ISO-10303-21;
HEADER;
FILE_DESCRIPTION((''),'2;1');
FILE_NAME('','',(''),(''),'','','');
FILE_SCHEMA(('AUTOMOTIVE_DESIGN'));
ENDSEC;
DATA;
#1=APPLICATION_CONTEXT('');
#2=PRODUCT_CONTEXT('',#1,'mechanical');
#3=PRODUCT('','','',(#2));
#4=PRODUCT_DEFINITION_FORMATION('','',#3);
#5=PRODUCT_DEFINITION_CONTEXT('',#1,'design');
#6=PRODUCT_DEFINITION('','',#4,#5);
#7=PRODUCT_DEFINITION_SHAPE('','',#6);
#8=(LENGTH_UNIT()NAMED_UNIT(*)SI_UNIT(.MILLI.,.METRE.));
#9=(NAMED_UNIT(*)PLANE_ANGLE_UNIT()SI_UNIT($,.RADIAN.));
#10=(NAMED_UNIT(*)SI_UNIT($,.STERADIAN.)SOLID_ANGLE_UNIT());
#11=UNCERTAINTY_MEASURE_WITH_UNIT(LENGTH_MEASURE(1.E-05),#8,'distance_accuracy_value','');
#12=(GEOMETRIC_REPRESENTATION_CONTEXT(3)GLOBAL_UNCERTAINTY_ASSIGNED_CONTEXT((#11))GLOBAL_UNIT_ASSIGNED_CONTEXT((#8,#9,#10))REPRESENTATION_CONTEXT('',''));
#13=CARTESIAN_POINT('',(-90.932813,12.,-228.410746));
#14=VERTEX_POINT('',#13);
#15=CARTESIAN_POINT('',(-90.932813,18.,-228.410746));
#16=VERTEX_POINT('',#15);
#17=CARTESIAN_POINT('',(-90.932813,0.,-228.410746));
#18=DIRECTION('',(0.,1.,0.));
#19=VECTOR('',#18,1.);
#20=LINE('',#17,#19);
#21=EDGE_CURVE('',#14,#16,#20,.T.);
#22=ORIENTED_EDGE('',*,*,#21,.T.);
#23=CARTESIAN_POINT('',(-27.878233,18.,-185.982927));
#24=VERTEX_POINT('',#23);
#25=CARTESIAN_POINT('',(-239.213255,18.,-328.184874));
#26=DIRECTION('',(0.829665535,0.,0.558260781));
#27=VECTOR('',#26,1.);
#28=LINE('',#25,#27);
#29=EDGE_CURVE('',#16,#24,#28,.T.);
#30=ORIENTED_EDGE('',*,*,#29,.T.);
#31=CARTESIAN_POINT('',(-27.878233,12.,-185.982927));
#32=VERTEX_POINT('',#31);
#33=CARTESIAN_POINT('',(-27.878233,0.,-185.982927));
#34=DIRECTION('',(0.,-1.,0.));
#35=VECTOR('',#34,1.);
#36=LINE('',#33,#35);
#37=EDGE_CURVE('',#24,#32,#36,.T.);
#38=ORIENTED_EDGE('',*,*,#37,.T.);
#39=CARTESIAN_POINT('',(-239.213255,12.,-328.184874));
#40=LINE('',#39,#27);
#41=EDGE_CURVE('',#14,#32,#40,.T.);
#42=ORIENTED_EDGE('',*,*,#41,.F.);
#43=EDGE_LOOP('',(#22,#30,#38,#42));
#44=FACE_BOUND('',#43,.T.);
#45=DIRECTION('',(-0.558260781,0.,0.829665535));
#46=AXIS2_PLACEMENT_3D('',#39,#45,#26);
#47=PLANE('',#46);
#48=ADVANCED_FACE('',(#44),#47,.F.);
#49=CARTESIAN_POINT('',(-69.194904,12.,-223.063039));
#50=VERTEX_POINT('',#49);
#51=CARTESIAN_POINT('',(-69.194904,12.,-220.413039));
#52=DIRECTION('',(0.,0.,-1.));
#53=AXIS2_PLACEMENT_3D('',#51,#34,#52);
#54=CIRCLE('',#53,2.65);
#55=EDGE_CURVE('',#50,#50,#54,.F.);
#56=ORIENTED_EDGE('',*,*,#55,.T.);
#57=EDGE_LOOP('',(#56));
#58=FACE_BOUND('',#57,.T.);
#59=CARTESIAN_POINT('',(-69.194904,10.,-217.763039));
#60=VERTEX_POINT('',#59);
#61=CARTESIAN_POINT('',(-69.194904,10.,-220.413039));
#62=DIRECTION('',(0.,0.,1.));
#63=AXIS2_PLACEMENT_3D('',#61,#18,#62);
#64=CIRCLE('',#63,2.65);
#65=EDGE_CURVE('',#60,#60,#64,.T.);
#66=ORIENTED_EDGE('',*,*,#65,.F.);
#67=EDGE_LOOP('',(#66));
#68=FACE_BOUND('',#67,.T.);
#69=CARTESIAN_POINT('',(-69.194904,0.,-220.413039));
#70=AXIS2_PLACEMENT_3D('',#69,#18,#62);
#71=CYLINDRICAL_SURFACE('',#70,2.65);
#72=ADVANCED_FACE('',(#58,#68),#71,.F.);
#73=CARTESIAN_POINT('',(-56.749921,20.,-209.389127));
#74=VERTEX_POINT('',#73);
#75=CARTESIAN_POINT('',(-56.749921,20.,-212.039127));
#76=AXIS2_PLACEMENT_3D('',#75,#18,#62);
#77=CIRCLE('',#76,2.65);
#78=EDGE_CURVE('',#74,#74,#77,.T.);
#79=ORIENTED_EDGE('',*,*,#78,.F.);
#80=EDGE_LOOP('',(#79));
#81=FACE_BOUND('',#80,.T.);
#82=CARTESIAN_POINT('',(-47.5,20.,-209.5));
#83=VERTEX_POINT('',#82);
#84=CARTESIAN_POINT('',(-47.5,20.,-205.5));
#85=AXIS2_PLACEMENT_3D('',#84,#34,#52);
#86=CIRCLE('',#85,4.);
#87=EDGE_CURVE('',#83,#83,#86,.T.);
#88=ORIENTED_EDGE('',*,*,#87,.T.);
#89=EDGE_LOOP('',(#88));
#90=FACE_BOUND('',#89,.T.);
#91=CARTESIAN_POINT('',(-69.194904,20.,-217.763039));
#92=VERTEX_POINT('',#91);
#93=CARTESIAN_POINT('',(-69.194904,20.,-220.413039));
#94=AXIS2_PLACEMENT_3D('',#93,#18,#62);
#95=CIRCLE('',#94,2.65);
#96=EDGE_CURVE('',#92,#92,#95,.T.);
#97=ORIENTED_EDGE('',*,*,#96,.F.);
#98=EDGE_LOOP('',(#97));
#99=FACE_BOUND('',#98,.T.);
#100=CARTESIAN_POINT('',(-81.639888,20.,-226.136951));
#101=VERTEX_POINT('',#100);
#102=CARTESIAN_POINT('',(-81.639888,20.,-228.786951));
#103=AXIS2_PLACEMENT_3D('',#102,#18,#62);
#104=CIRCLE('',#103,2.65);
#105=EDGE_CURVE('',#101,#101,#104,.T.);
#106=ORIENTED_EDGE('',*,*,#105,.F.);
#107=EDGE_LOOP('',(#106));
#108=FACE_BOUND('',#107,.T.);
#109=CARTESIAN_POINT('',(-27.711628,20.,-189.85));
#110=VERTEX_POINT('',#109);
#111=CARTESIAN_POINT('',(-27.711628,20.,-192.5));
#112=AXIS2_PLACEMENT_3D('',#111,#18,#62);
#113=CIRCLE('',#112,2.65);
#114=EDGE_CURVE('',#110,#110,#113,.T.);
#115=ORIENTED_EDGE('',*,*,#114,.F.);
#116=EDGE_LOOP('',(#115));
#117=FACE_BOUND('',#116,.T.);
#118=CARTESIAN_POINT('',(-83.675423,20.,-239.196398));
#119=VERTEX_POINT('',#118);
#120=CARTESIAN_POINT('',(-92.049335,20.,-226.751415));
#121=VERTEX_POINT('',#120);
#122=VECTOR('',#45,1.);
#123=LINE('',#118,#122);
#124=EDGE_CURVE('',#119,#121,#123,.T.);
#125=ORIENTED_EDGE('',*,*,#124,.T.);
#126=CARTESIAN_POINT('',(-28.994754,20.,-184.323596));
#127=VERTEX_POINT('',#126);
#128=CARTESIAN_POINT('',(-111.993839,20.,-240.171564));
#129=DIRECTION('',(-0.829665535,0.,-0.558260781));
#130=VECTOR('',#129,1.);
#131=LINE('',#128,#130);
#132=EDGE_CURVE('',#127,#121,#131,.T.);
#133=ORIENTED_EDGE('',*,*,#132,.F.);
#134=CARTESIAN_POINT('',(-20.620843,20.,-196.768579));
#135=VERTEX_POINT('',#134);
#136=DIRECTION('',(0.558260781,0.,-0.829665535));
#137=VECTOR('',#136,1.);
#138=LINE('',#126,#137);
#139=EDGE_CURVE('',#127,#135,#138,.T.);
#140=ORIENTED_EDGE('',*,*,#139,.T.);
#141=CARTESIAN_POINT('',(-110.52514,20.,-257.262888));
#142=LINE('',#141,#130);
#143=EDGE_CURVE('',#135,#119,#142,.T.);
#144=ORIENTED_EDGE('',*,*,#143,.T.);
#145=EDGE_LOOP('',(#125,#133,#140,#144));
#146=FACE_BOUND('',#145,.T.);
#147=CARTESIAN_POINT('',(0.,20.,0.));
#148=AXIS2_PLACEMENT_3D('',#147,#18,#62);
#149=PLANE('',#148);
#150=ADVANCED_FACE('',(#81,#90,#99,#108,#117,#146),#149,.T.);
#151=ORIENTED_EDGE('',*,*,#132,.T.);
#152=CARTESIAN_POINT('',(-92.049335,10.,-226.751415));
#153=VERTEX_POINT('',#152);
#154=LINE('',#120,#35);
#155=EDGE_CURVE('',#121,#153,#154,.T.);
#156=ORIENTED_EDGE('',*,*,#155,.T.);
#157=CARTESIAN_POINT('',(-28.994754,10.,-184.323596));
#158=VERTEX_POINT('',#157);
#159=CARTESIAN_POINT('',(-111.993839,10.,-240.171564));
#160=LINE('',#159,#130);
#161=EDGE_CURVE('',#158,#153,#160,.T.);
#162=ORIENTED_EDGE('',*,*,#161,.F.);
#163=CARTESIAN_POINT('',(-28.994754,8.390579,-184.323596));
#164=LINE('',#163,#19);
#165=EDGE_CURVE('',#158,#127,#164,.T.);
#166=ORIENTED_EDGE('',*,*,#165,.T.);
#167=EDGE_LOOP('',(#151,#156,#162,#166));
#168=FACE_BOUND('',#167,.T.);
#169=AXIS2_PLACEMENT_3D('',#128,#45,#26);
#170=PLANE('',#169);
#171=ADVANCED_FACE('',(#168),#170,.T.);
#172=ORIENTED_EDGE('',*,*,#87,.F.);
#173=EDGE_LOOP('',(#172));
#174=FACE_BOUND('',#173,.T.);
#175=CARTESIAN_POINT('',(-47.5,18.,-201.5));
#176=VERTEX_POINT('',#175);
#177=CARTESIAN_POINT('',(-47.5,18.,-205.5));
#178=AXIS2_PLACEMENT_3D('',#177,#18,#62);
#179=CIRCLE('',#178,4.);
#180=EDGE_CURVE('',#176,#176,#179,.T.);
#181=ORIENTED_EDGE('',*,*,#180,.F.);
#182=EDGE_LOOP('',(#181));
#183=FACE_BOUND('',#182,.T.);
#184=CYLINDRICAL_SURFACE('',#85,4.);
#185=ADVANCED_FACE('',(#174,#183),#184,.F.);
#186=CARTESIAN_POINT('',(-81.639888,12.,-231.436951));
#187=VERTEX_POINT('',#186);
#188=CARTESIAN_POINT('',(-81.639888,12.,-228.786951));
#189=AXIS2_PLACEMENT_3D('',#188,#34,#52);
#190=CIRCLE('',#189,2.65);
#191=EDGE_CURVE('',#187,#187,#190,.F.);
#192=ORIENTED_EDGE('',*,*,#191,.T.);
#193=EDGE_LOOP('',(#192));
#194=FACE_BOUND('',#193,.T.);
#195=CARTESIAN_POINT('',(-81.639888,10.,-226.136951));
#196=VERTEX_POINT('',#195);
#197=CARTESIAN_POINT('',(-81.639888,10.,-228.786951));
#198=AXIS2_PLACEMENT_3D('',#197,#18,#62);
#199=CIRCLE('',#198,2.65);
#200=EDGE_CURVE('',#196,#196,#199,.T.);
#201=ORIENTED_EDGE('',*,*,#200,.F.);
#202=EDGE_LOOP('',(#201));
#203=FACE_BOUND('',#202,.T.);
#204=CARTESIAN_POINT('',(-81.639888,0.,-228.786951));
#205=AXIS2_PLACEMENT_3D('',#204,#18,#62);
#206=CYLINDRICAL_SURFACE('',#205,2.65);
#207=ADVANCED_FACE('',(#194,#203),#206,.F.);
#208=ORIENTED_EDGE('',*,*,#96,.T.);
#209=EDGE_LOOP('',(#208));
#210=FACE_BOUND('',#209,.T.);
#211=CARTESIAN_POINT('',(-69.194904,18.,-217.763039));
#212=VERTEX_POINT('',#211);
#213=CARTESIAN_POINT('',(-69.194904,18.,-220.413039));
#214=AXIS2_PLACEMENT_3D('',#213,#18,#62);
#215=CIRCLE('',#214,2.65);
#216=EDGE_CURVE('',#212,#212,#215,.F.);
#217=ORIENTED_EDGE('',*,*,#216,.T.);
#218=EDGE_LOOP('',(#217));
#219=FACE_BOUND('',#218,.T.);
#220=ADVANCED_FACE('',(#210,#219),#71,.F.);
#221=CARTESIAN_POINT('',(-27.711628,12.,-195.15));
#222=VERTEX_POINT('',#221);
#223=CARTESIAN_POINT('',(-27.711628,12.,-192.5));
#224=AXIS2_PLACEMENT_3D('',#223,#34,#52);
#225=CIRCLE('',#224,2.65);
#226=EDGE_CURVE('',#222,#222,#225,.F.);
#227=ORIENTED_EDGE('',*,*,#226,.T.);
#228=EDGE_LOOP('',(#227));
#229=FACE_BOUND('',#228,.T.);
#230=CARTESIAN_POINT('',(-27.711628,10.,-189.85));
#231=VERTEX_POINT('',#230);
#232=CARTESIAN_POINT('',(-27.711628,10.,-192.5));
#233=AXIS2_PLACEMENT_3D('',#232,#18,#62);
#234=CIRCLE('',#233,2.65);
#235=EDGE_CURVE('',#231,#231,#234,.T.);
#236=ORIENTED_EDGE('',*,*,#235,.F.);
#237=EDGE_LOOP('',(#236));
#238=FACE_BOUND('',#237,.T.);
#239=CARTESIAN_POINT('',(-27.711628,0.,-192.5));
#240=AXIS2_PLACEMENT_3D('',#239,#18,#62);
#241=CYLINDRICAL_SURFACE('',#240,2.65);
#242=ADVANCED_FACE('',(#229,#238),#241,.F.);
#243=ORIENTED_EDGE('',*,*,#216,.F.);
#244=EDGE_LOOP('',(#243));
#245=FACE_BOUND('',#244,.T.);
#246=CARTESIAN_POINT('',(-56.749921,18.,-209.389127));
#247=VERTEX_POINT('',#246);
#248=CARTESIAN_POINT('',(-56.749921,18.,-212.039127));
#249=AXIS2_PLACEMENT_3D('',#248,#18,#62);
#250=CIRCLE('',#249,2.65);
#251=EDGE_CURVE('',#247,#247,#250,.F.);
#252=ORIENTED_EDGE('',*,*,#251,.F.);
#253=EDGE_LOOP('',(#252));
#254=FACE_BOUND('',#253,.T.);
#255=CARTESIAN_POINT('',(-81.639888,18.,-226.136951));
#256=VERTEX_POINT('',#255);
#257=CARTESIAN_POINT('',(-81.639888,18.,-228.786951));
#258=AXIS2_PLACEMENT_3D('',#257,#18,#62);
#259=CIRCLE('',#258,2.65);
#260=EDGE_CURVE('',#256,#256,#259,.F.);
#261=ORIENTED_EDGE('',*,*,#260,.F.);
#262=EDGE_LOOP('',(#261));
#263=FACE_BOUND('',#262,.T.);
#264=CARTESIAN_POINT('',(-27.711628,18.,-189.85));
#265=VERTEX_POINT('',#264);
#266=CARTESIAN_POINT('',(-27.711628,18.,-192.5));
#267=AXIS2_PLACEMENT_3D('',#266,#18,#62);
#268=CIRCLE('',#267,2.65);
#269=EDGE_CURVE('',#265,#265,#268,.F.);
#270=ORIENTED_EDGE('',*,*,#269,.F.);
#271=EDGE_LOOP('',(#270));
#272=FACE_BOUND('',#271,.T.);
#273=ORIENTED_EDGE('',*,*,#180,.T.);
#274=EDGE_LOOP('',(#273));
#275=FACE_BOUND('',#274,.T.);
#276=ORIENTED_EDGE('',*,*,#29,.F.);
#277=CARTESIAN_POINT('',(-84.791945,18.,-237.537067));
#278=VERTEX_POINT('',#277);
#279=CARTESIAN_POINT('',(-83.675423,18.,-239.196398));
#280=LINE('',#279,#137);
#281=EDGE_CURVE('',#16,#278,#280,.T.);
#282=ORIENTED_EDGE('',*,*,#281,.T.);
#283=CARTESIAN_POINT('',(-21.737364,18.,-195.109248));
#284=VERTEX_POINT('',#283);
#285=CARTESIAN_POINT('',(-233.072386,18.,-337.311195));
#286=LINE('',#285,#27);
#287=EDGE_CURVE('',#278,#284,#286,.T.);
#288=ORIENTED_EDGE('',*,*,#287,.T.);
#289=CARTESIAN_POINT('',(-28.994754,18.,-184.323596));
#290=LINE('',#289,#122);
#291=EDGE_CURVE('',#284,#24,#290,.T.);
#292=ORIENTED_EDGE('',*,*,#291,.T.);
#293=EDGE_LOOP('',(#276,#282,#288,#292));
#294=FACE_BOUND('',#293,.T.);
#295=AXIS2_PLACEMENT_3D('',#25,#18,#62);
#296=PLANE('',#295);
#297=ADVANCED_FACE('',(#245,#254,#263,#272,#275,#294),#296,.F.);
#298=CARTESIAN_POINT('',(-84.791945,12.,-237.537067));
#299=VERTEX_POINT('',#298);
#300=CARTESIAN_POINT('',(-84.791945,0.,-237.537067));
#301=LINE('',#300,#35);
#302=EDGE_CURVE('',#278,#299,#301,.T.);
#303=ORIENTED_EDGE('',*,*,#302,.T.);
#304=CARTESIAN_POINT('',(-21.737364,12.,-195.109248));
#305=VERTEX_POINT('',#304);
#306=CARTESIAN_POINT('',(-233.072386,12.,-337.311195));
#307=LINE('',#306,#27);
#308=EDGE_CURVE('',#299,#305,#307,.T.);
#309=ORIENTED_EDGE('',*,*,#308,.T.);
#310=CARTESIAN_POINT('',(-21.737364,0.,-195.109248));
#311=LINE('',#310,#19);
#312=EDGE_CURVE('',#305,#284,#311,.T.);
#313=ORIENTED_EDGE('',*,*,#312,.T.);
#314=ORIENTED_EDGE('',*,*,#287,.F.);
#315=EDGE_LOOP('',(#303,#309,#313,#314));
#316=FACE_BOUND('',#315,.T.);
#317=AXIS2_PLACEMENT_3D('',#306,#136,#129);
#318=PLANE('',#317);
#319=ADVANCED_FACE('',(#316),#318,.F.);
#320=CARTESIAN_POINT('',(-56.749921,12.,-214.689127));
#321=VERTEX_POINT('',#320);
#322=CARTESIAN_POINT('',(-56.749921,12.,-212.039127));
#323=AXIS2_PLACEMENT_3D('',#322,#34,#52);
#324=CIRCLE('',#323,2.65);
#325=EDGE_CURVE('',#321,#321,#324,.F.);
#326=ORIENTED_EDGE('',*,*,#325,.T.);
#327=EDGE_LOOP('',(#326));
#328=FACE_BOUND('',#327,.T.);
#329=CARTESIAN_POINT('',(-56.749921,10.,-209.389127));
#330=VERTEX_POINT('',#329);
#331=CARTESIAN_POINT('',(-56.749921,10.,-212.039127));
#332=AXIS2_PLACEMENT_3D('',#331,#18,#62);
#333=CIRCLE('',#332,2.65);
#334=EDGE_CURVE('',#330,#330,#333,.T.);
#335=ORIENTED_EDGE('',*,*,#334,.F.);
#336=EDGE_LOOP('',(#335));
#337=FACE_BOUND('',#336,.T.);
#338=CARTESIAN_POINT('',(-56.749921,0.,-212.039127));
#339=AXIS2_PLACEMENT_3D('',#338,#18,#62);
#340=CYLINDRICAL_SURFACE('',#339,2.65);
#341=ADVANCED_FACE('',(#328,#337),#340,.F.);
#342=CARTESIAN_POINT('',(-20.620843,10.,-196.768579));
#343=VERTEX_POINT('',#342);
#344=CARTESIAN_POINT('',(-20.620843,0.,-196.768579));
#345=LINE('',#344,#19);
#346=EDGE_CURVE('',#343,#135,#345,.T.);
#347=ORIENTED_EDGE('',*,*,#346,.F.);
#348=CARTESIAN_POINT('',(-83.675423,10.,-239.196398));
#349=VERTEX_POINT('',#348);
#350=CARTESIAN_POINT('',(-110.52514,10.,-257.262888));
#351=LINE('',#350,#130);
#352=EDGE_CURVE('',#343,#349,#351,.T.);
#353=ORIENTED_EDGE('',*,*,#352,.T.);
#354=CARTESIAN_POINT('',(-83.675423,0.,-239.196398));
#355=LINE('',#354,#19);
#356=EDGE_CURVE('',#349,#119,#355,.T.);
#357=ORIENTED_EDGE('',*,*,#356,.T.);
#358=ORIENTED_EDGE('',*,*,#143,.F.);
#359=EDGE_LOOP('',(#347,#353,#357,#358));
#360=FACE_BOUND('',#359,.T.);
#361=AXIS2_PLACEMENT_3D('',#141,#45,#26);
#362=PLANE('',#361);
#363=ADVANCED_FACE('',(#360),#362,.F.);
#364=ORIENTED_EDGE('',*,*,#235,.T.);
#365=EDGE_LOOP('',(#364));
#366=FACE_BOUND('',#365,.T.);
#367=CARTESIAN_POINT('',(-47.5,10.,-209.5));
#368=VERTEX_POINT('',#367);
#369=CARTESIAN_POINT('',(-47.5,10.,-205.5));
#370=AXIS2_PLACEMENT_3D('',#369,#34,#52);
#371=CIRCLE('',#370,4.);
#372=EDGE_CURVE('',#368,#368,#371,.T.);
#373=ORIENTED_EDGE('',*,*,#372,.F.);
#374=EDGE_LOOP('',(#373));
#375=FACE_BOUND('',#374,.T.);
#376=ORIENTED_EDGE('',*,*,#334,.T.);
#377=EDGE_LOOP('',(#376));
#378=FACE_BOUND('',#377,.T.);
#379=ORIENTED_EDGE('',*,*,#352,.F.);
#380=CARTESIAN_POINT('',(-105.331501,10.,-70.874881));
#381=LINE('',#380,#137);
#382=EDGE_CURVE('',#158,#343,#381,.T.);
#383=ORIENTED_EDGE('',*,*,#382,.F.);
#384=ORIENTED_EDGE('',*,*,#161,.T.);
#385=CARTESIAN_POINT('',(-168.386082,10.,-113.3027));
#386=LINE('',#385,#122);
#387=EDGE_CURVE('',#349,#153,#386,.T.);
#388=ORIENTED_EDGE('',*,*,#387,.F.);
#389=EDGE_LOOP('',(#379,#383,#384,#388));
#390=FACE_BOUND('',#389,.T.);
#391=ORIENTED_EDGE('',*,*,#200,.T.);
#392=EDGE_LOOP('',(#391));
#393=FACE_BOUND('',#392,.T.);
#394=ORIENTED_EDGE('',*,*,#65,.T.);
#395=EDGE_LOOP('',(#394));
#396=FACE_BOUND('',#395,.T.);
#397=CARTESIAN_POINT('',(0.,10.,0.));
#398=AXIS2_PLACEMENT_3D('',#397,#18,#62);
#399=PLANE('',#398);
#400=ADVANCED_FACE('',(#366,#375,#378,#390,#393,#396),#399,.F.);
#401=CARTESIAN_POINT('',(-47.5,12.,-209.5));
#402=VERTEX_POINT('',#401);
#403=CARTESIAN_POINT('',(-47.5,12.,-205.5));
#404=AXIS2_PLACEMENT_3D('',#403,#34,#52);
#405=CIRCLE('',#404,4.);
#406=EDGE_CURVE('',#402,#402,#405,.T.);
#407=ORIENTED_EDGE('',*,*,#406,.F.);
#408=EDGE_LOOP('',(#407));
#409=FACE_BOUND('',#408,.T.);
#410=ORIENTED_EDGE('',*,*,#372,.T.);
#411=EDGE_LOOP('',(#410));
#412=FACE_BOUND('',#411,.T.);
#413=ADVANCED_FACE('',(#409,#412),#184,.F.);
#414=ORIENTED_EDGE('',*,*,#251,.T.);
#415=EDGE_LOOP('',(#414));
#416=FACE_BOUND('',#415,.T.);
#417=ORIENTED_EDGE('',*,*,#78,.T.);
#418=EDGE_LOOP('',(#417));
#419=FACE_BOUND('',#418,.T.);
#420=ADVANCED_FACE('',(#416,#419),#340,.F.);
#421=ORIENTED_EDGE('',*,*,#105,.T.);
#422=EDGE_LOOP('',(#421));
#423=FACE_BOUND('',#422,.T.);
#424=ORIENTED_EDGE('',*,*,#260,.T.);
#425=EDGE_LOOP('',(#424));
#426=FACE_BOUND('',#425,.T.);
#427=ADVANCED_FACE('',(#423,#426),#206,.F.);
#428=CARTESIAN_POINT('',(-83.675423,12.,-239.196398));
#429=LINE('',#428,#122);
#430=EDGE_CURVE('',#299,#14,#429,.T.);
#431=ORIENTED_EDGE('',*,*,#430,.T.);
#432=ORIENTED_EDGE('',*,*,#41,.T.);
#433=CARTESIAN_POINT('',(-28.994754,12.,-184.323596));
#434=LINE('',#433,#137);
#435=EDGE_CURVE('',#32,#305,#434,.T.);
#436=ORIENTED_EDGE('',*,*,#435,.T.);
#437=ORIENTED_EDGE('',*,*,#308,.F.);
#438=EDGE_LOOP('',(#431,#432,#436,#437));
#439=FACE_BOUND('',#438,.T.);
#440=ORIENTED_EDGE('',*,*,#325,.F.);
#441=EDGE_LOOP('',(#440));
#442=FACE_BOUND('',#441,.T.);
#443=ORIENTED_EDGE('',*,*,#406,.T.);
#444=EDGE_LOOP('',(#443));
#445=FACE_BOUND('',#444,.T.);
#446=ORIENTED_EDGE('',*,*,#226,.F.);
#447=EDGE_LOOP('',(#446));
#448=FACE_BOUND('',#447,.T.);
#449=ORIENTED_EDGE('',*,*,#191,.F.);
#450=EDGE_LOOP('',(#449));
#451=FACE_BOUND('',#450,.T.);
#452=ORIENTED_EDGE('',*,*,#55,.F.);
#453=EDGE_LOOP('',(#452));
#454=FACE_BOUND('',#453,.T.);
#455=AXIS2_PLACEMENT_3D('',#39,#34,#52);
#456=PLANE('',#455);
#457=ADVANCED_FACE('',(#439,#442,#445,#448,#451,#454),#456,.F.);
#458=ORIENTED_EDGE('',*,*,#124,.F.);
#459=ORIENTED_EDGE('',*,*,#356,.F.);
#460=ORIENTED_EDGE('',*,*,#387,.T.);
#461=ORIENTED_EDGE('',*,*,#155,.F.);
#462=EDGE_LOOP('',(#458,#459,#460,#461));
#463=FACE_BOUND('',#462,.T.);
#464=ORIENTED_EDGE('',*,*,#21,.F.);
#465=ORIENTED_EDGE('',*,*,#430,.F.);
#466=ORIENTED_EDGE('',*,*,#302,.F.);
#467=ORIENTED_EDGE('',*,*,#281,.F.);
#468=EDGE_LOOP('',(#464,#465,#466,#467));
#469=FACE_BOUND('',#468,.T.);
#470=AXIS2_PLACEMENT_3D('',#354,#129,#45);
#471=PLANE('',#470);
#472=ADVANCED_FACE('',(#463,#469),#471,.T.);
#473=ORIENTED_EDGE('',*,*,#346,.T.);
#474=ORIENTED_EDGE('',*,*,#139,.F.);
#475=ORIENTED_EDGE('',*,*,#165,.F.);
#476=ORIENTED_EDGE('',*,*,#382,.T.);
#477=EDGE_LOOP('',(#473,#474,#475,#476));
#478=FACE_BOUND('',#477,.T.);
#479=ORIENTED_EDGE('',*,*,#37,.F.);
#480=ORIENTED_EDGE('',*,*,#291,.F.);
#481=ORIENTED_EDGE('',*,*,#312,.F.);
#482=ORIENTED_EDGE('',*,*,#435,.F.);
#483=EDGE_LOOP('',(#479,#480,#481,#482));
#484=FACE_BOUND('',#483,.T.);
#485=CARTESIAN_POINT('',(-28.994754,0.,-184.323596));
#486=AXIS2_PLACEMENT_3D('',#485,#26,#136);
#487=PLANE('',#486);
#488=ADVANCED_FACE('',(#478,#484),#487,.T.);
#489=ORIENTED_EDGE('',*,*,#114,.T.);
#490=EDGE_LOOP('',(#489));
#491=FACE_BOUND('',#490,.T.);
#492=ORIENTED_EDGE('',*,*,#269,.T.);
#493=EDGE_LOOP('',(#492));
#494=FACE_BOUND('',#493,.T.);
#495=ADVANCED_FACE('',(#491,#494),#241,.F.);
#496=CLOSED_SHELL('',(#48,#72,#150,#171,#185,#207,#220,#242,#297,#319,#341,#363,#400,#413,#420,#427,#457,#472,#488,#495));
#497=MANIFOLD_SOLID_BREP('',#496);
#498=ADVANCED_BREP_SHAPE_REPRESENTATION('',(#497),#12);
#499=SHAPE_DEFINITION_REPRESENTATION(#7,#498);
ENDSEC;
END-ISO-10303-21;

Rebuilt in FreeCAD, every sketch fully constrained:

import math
import FreeCAD as App
import Part
import Sketcher

V = App.Vector
Q = App.Units.Quantity


def add_polygon(sketch, points):
    """Adds a closed chain of lines whose ends are joined by coincident constraints."""
    first, n = sketch.GeometryCount, len(points)
    for a, b in zip(points, points[1:] + points[:1]):
        sketch.addGeometry(Part.LineSegment(App.Vector(*a, 0), App.Vector(*b, 0)), False)
    for i in range(n):
        sketch.addConstraint(Sketcher.Constraint("Coincident", first + i, 2, first + (i + 1) % n, 1))

doc = App.newDocument("Part")
body = doc.addObject("PartDesign::Body", "Body")

sketch1 = doc.addObject("Sketcher::SketchObject", "Sketch")
body.addObject(sketch1)
sketch1.AttachmentSupport = (doc.XZ_Plane, [""])
sketch1.MapMode = "FlatFace"
sketch1.addGeometry(Part.Circle(V(0, 0, 0), V(0, 0, 1), 275), False)
sketch1.addGeometry(Part.Circle(V(0, 0, 0), V(0, 0, 1), 255), False)
sketch1.addConstraint(Sketcher.Constraint("Coincident", 0, 3, -1, 1))
sketch1.addConstraint(Sketcher.Constraint("Coincident", 1, 3, -1, 1))
sketch1.addConstraint(Sketcher.Constraint("Diameter", 0, Q("550 mm")))
sketch1.addConstraint(Sketcher.Constraint("Diameter", 1, Q("510 mm")))
pad1 = doc.addObject("PartDesign::Pad", "Pad")
body.addObject(pad1)
pad1.Profile = sketch1
pad1.Length = 10
pad1.Reversed = True

sketch2 = doc.addObject("Sketcher::SketchObject", "Sketch001")
body.addObject(sketch2)
sketch2.Placement = App.Placement(V(84.710659, 0, -125.893698), App.Rotation(V(-0.829665535, 0, -0.558260781), V(0, 1, 0), V(0.558260781, 0, -0.829665535), "ZXY"))
add_polygon(sketch2, [(-342, 10), (-342, -10), (342, -10), (342, 10)])
sketch2.addConstraint(Sketcher.Constraint("Vertical", 0))
sketch2.addConstraint(Sketcher.Constraint("Horizontal", 1))
sketch2.addConstraint(Sketcher.Constraint("Vertical", 2))
sketch2.addConstraint(Sketcher.Constraint("Horizontal", 3))
sketch2.addConstraint(Sketcher.Constraint("Symmetric", 0, 2, 2, 2, -1, 1))
sketch2.addConstraint(Sketcher.Constraint("DistanceY", 0, 2, 0, 1, Q("20 mm")))
sketch2.addConstraint(Sketcher.Constraint("DistanceX", 1, 1, 1, 2, Q("684.820669 mm")))
pocket1 = doc.addObject("PartDesign::Pocket", "Pocket")
body.addObject(pocket1)
pocket1.Profile = sketch2
pocket1.Type = "ThroughAll"
pocket1.Midplane = True
body2 = doc.addObject("PartDesign::Body", "Body001")

sketch3 = doc.addObject("Sketcher::SketchObject", "Sketch002")
body2.addObject(sketch3)
sketch3.AttachmentSupport = (doc.getObject("XZ_Plane001"), [""])
sketch3.MapMode = "FlatFace"
sketch3.AttachmentOffset = App.Placement(V(0, 0, -10), App.Rotation())
sketch3.addGeometry(Part.LineSegment(V(-25, -200, 0), V(-111, -257, 0)), False)
sketch3.addGeometry(Part.ArcOfCircle(Part.Circle(V(0, 0, 0), V(0, 0, 1), 280), math.radians(-157), math.radians(-113)), False)
sketch3.addGeometry(Part.LineSegment(V(-257, -111, 0), V(-200, -25, 0)), False)
sketch3.addGeometry(Part.LineSegment(V(-200, -25, 0), V(-200, 25, 0)), False)
sketch3.addGeometry(Part.LineSegment(V(-200, 25, 0), V(-257, 111, 0)), False)
sketch3.addGeometry(Part.ArcOfCircle(Part.Circle(V(0, 0, 0), V(0, 0, 1), 280), math.radians(113), math.radians(157)), False)
sketch3.addGeometry(Part.LineSegment(V(-111, 257, 0), V(-25, 200, 0)), False)
sketch3.addGeometry(Part.LineSegment(V(-25, 200, 0), V(25, 200, 0)), False)
sketch3.addGeometry(Part.LineSegment(V(25, 200, 0), V(111, 257, 0)), False)
sketch3.addGeometry(Part.ArcOfCircle(Part.Circle(V(0, 0, 0), V(0, 0, 1), 280), math.radians(23), math.radians(67)), False)
sketch3.addGeometry(Part.LineSegment(V(257, 111, 0), V(200, 25, 0)), False)
sketch3.addGeometry(Part.LineSegment(V(200, 25, 0), V(200, -25, 0)), False)
sketch3.addGeometry(Part.LineSegment(V(200, -25, 0), V(257, -111, 0)), False)
sketch3.addGeometry(Part.ArcOfCircle(Part.Circle(V(0, 0, 0), V(0, 0, 1), 280), math.radians(-67), math.radians(-23)), False)
sketch3.addGeometry(Part.LineSegment(V(111, -257, 0), V(25, -200, 0)), False)
sketch3.addGeometry(Part.LineSegment(V(25, -200, 0), V(-25, -200, 0)), False)
sketch3.addGeometry(Part.LineSegment(V(30, -185, 0), V(112, -240, 0)), False)
sketch3.addGeometry(Part.ArcOfCircle(Part.Circle(V(0, 0, 0), V(0, 0, 1), 265), math.radians(-65), math.radians(-25)), False)
sketch3.addGeometry(Part.LineSegment(V(240, -112, 0), V(185, -30, 0)), False)
sketch3.addGeometry(Part.LineSegment(V(185, -30, 0), V(185, 30, 0)), False)
sketch3.addGeometry(Part.LineSegment(V(185, 30, 0), V(240, 112, 0)), False)
sketch3.addGeometry(Part.ArcOfCircle(Part.Circle(V(0, 0, 0), V(0, 0, 1), 265), math.radians(25), math.radians(65)), False)
sketch3.addGeometry(Part.LineSegment(V(112, 240, 0), V(30, 185, 0)), False)
sketch3.addGeometry(Part.LineSegment(V(30, 185, 0), V(-30, 185, 0)), False)
sketch3.addGeometry(Part.LineSegment(V(-30, 185, 0), V(-112, 240, 0)), False)
sketch3.addGeometry(Part.ArcOfCircle(Part.Circle(V(0, 0, 0), V(0, 0, 1), 265), math.radians(115), math.radians(155)), False)
sketch3.addGeometry(Part.LineSegment(V(-240, 112, 0), V(-185, 30, 0)), False)
sketch3.addGeometry(Part.LineSegment(V(-185, 30, 0), V(-185, -30, 0)), False)
sketch3.addGeometry(Part.LineSegment(V(-185, -30, 0), V(-240, -112, 0)), False)
sketch3.addGeometry(Part.ArcOfCircle(Part.Circle(V(0, 0, 0), V(0, 0, 1), 265), math.radians(-155), math.radians(-115)), False)
sketch3.addGeometry(Part.LineSegment(V(-112, -240, 0), V(-30, -185, 0)), False)
sketch3.addGeometry(Part.LineSegment(V(-30, -185, 0), V(30, -185, 0)), False)
sketch3.addConstraint(Sketcher.Constraint("Coincident", 0, 2, 1, 2))
sketch3.addConstraint(Sketcher.Constraint("Coincident", 1, 1, 2, 1))
sketch3.addConstraint(Sketcher.Constraint("Coincident", 2, 2, 3, 1))
sketch3.addConstraint(Sketcher.Constraint("Coincident", 3, 2, 4, 1))
sketch3.addConstraint(Sketcher.Constraint("Coincident", 4, 2, 5, 2))
sketch3.addConstraint(Sketcher.Constraint("Coincident", 5, 1, 6, 1))
sketch3.addConstraint(Sketcher.Constraint("Coincident", 6, 2, 7, 1))
sketch3.addConstraint(Sketcher.Constraint("Coincident", 7, 2, 8, 1))
sketch3.addConstraint(Sketcher.Constraint("Coincident", 8, 2, 9, 2))
sketch3.addConstraint(Sketcher.Constraint("Coincident", 9, 1, 10, 1))
sketch3.addConstraint(Sketcher.Constraint("Coincident", 10, 2, 11, 1))
sketch3.addConstraint(Sketcher.Constraint("Coincident", 11, 2, 12, 1))
sketch3.addConstraint(Sketcher.Constraint("Coincident", 12, 2, 13, 2))
sketch3.addConstraint(Sketcher.Constraint("Coincident", 13, 1, 14, 1))
sketch3.addConstraint(Sketcher.Constraint("Coincident", 14, 2, 15, 1))
sketch3.addConstraint(Sketcher.Constraint("Coincident", 15, 2, 0, 1))
sketch3.addConstraint(Sketcher.Constraint("Coincident", 16, 2, 17, 1))
sketch3.addConstraint(Sketcher.Constraint("Coincident", 17, 2, 18, 1))
sketch3.addConstraint(Sketcher.Constraint("Coincident", 18, 2, 19, 1))
sketch3.addConstraint(Sketcher.Constraint("Coincident", 19, 2, 20, 1))
sketch3.addConstraint(Sketcher.Constraint("Coincident", 20, 2, 21, 1))
sketch3.addConstraint(Sketcher.Constraint("Coincident", 21, 2, 22, 1))
sketch3.addConstraint(Sketcher.Constraint("Coincident", 22, 2, 23, 1))
sketch3.addConstraint(Sketcher.Constraint("Coincident", 23, 2, 24, 1))
sketch3.addConstraint(Sketcher.Constraint("Coincident", 24, 2, 25, 1))
sketch3.addConstraint(Sketcher.Constraint("Coincident", 25, 2, 26, 1))
sketch3.addConstraint(Sketcher.Constraint("Coincident", 26, 2, 27, 1))
sketch3.addConstraint(Sketcher.Constraint("Coincident", 27, 2, 28, 1))
sketch3.addConstraint(Sketcher.Constraint("Coincident", 28, 2, 29, 1))
sketch3.addConstraint(Sketcher.Constraint("Coincident", 29, 2, 30, 1))
sketch3.addConstraint(Sketcher.Constraint("Coincident", 30, 2, 31, 1))
sketch3.addConstraint(Sketcher.Constraint("Coincident", 31, 2, 16, 1))
sketch3.addConstraint(Sketcher.Constraint("Vertical", 3))
sketch3.addConstraint(Sketcher.Constraint("Horizontal", 7))
sketch3.addConstraint(Sketcher.Constraint("Vertical", 11))
sketch3.addConstraint(Sketcher.Constraint("Horizontal", 15))
sketch3.addConstraint(Sketcher.Constraint("Vertical", 19))
sketch3.addConstraint(Sketcher.Constraint("Horizontal", 23))
sketch3.addConstraint(Sketcher.Constraint("Vertical", 27))
sketch3.addConstraint(Sketcher.Constraint("Horizontal", 31))
sketch3.addConstraint(Sketcher.Constraint("Coincident", 1, 3, -1, 1))
sketch3.addConstraint(Sketcher.Constraint("Coincident", 5, 3, -1, 1))
sketch3.addConstraint(Sketcher.Constraint("Coincident", 9, 3, -1, 1))
sketch3.addConstraint(Sketcher.Constraint("Coincident", 13, 3, -1, 1))
sketch3.addConstraint(Sketcher.Constraint("Coincident", 17, 3, -1, 1))
sketch3.addConstraint(Sketcher.Constraint("Coincident", 21, 3, -1, 1))
sketch3.addConstraint(Sketcher.Constraint("Coincident", 25, 3, -1, 1))
sketch3.addConstraint(Sketcher.Constraint("Coincident", 29, 3, -1, 1))
sketch3.addConstraint(Sketcher.Constraint("Equal", 1, 5))
sketch3.addConstraint(Sketcher.Constraint("Equal", 5, 9))
sketch3.addConstraint(Sketcher.Constraint("Equal", 9, 13))
sketch3.addConstraint(Sketcher.Constraint("Equal", 17, 21))
sketch3.addConstraint(Sketcher.Constraint("Equal", 21, 25))
sketch3.addConstraint(Sketcher.Constraint("Equal", 25, 29))
sketch3.addConstraint(Sketcher.Constraint("Symmetric", 2, 2, 10, 2, -1, 1))
sketch3.addConstraint(Sketcher.Constraint("Symmetric", 6, 2, 14, 2, -1, 1))
sketch3.addConstraint(Sketcher.Constraint("Symmetric", 18, 2, 26, 2, -1, 1))
sketch3.addConstraint(Sketcher.Constraint("Symmetric", 22, 2, 30, 2, -1, 1))
sketch3.addConstraint(Sketcher.Constraint("Perpendicular", 0, 4))
sketch3.addConstraint(Sketcher.Constraint("Perpendicular", 2, 6))
sketch3.addConstraint(Sketcher.Constraint("Perpendicular", 4, 8))
sketch3.addConstraint(Sketcher.Constraint("Perpendicular", 6, 10))
sketch3.addConstraint(Sketcher.Constraint("Perpendicular", 8, 12))
sketch3.addConstraint(Sketcher.Constraint("Perpendicular", 10, 14))
sketch3.addConstraint(Sketcher.Constraint("Parallel", 14, 16))
sketch3.addConstraint(Sketcher.Constraint("Parallel", 12, 18))
sketch3.addConstraint(Sketcher.Constraint("Perpendicular", 16, 20))
sketch3.addConstraint(Sketcher.Constraint("Perpendicular", 18, 22))
sketch3.addConstraint(Sketcher.Constraint("Perpendicular", 20, 24))
sketch3.addConstraint(Sketcher.Constraint("Perpendicular", 22, 26))
sketch3.addConstraint(Sketcher.Constraint("Perpendicular", 24, 28))
sketch3.addConstraint(Sketcher.Constraint("Perpendicular", 26, 30))
sketch3.addConstraint(Sketcher.Constraint("Horizontal", 5, 1, 8, 2))
sketch3.addConstraint(Sketcher.Constraint("Horizontal", 4, 2, 9, 1))
sketch3.addConstraint(Sketcher.Constraint("Horizontal", 3, 2, 10, 2))
sketch3.addConstraint(Sketcher.Constraint("Horizontal", 2, 2, 11, 2))
sketch3.addConstraint(Sketcher.Constraint("Horizontal", 19, 2, 26, 2))
sketch3.addConstraint(Sketcher.Constraint("Horizontal", 18, 2, 27, 2))
sketch3.addConstraint(Sketcher.Constraint("Vertical", 6, 2, 15, 2))
sketch3.addConstraint(Sketcher.Constraint("Vertical", 23, 2, 30, 2))
sketch3.addConstraint(Sketcher.Constraint("Vertical", 22, 2, 31, 2))
sketch3.addConstraint(Sketcher.Constraint("Equal", 15, 3))
sketch3.addConstraint(Sketcher.Constraint("Equal", 31, 19))
sketch3.addConstraint(Sketcher.Constraint("Equal", 0, 2))
sketch3.addConstraint(Sketcher.Constraint("Equal", 16, 18))
sketch3.addConstraint(Sketcher.Constraint("Radius", 1, Q("280 mm")))
sketch3.addConstraint(Sketcher.Constraint("Radius", 17, Q("265 mm")))
sketch3.addConstraint(Sketcher.Constraint("DistanceX", 23, 2, 23, 1, Q("60 mm")))
sketch3.addConstraint(Sketcher.Constraint("DistanceX", 2, 2, -1, 1, Q("200 mm")))
sketch3.addConstraint(Sketcher.Constraint("DistanceX", -1, 1, 18, 2, Q("185 mm")))
sketch3.addConstraint(Sketcher.Constraint("DistanceX", 7, 1, 7, 2, Q("50.846511 mm")))
sketch3.addConstraint(Sketcher.Constraint("DistanceX", 0, 2, -1, 1, Q("110.52514 mm")))
pad2 = doc.addObject("PartDesign::Pad", "Pad001")
body2.addObject(pad2)
pad2.Profile = sketch3
pad2.Length = 10
pad2.Reversed = True

sketch4 = doc.addObject("Sketcher::SketchObject", "Sketch003")
body2.addObject(sketch4)
sketch4.AttachmentSupport = (doc.getObject("XZ_Plane001"), [""])
sketch4.MapMode = "FlatFace"
sketch4.AttachmentOffset = App.Placement(V(0, 0, -20), App.Rotation())
sketch4.addGeometry(Part.Circle(V(-10, -192.5, 0), V(0, 0, 1), 2.6), False)
sketch4.addGeometry(Part.Circle(V(10, -192.5, 0), V(0, 0, 1), 2.6), False)
sketch4.addGeometry(Part.Circle(V(-10, 192.5, 0), V(0, 0, 1), 2.6), False)
sketch4.addGeometry(Part.Circle(V(10, 192.5, 0), V(0, 0, 1), 2.6), False)
sketch4.addGeometry(Part.Circle(V(192.5, -10, 0), V(0, 0, 1), 2.6), False)
sketch4.addGeometry(Part.Circle(V(192.5, 10, 0), V(0, 0, 1), 2.6), False)
sketch4.addGeometry(Part.Circle(V(-192.5, -10, 0), V(0, 0, 1), 2.6), False)
sketch4.addGeometry(Part.Circle(V(-192.5, 10, 0), V(0, 0, 1), 2.6), False)
sketch4.addGeometry(Part.Circle(V(-110.5, -248.2, 0), V(0, 0, 1), 1.6), False)
sketch4.addGeometry(Part.Circle(V(-27.7, -192.5, 0), V(0, 0, 1), 2.6), False)
sketch4.addGeometry(Part.Circle(V(-56.7, -212, 0), V(0, 0, 1), 2.6), False)
sketch4.addGeometry(Part.Circle(V(-69.2, -220.4, 0), V(0, 0, 1), 2.6), False)
sketch4.addGeometry(Part.Circle(V(-81.6, -228.8, 0), V(0, 0, 1), 2.6), False)
sketch4.addGeometry(Part.Circle(V(-143.8, -231.5, 0), V(0, 0, 1), 2.1), False)
sketch4.addGeometry(Part.Circle(V(-164.4, -217.3, 0), V(0, 0, 1), 2.1), False)
sketch4.addGeometry(Part.Circle(V(-183.6, -201.3, 0), V(0, 0, 1), 2.1), False)
sketch4.addGeometry(Part.Circle(V(-201.3, -183.6, 0), V(0, 0, 1), 2.1), False)
sketch4.addGeometry(Part.Circle(V(-217.3, -164.4, 0), V(0, 0, 1), 2.1), False)
sketch4.addGeometry(Part.Circle(V(-231.5, -143.8, 0), V(0, 0, 1), 2.1), False)
sketch4.addGeometry(Part.Circle(V(-128.8, -240.1, 0), V(0, 0, 1), 2.6), False)
sketch4.addGeometry(Part.Circle(V(-240.1, -128.8, 0), V(0, 0, 1), 2.6), False)
sketch4.addGeometry(Part.Circle(V(-228.8, -81.6, 0), V(0, 0, 1), 2.6), False)
sketch4.addGeometry(Part.Circle(V(-220.4, -69.2, 0), V(0, 0, 1), 2.6), False)
sketch4.addGeometry(Part.Circle(V(-212, -56.7, 0), V(0, 0, 1), 2.6), False)
sketch4.addGeometry(Part.Circle(V(-203.7, -44.3, 0), V(0, 0, 1), 2.6), False)
sketch4.addGeometry(Part.Circle(V(-192.5, -27.7, 0), V(0, 0, 1), 2.6), False)
sketch4.addGeometry(Part.Circle(V(-248.2, -110.5, 0), V(0, 0, 1), 1.6), False)
sketch4.addGeometry(Part.Circle(V(192.5, -27.7, 0), V(0, 0, 1), 2.6), False)
sketch4.addGeometry(Part.Circle(V(248.2, -110.5, 0), V(0, 0, 1), 1.6), False)
sketch4.addGeometry(Part.Circle(V(203.7, -44.3, 0), V(0, 0, 1), 2.6), False)
sketch4.addGeometry(Part.Circle(V(212, -56.7, 0), V(0, 0, 1), 2.6), False)
sketch4.addGeometry(Part.Circle(V(220.4, -69.2, 0), V(0, 0, 1), 2.6), False)
sketch4.addGeometry(Part.Circle(V(228.8, -81.6, 0), V(0, 0, 1), 2.6), False)
sketch4.addGeometry(Part.Circle(V(240.1, -128.8, 0), V(0, 0, 1), 2.6), False)
sketch4.addGeometry(Part.Circle(V(231.5, -143.8, 0), V(0, 0, 1), 2.1), False)
sketch4.addGeometry(Part.Circle(V(128.8, -240.1, 0), V(0, 0, 1), 2.6), False)
sketch4.addGeometry(Part.Circle(V(201.3, -183.6, 0), V(0, 0, 1), 2.1), False)
sketch4.addGeometry(Part.Circle(V(183.6, -201.3, 0), V(0, 0, 1), 2.1), False)
sketch4.addGeometry(Part.Circle(V(164.4, -217.3, 0), V(0, 0, 1), 2.1), False)
sketch4.addGeometry(Part.Circle(V(143.8, -231.5, 0), V(0, 0, 1), 2.1), False)
sketch4.addGeometry(Part.Circle(V(81.6, -228.8, 0), V(0, 0, 1), 2.6), False)
sketch4.addGeometry(Part.Circle(V(69.2, -220.4, 0), V(0, 0, 1), 2.6), False)
sketch4.addGeometry(Part.Circle(V(56.7, -212, 0), V(0, 0, 1), 2.6), False)
sketch4.addGeometry(Part.Circle(V(110.5, -248.2, 0), V(0, 0, 1), 1.6), False)
sketch4.addGeometry(Part.Circle(V(27.7, -192.5, 0), V(0, 0, 1), 2.6), False)
sketch4.addGeometry(Part.Circle(V(217.3, -164.4, 0), V(0, 0, 1), 2.1), False)
sketch4.addConstraint(Sketcher.Constraint("Equal", 0, 1))
sketch4.addConstraint(Sketcher.Constraint("Equal", 1, 2))
sketch4.addConstraint(Sketcher.Constraint("Equal", 2, 3))
sketch4.addConstraint(Sketcher.Constraint("Equal", 3, 4))
sketch4.addConstraint(Sketcher.Constraint("Equal", 4, 5))
sketch4.addConstraint(Sketcher.Constraint("Equal", 5, 6))
sketch4.addConstraint(Sketcher.Constraint("Equal", 6, 7))
sketch4.addConstraint(Sketcher.Constraint("Equal", 7, 9))
sketch4.addConstraint(Sketcher.Constraint("Equal", 9, 10))
sketch4.addConstraint(Sketcher.Constraint("Equal", 10, 11))
sketch4.addConstraint(Sketcher.Constraint("Equal", 11, 12))
sketch4.addConstraint(Sketcher.Constraint("Equal", 13, 14))
sketch4.addConstraint(Sketcher.Constraint("Equal", 14, 15))
sketch4.addConstraint(Sketcher.Constraint("Equal", 15, 16))
sketch4.addConstraint(Sketcher.Constraint("Equal", 16, 17))
sketch4.addConstraint(Sketcher.Constraint("Equal", 17, 18))
sketch4.addConstraint(Sketcher.Constraint("Equal", 12, 19))
sketch4.addConstraint(Sketcher.Constraint("Equal", 19, 20))
sketch4.addConstraint(Sketcher.Constraint("Equal", 20, 21))
sketch4.addConstraint(Sketcher.Constraint("Equal", 21, 22))
sketch4.addConstraint(Sketcher.Constraint("Equal", 22, 23))
sketch4.addConstraint(Sketcher.Constraint("Equal", 23, 24))
sketch4.addConstraint(Sketcher.Constraint("Equal", 24, 25))
sketch4.addConstraint(Sketcher.Constraint("Equal", 8, 26))
sketch4.addConstraint(Sketcher.Constraint("Equal", 25, 27))
sketch4.addConstraint(Sketcher.Constraint("Equal", 26, 28))
sketch4.addConstraint(Sketcher.Constraint("Equal", 27, 29))
sketch4.addConstraint(Sketcher.Constraint("Equal", 29, 30))
sketch4.addConstraint(Sketcher.Constraint("Equal", 30, 31))
sketch4.addConstraint(Sketcher.Constraint("Equal", 31, 32))
sketch4.addConstraint(Sketcher.Constraint("Equal", 32, 33))
sketch4.addConstraint(Sketcher.Constraint("Equal", 18, 34))
sketch4.addConstraint(Sketcher.Constraint("Equal", 33, 35))
sketch4.addConstraint(Sketcher.Constraint("Equal", 34, 36))
sketch4.addConstraint(Sketcher.Constraint("Equal", 36, 37))
sketch4.addConstraint(Sketcher.Constraint("Equal", 37, 38))
sketch4.addConstraint(Sketcher.Constraint("Equal", 38, 39))
sketch4.addConstraint(Sketcher.Constraint("Equal", 35, 40))
sketch4.addConstraint(Sketcher.Constraint("Equal", 40, 41))
sketch4.addConstraint(Sketcher.Constraint("Equal", 41, 42))
sketch4.addConstraint(Sketcher.Constraint("Equal", 28, 43))
sketch4.addConstraint(Sketcher.Constraint("Equal", 42, 44))
sketch4.addConstraint(Sketcher.Constraint("Equal", 39, 45))
sketch4.addConstraint(Sketcher.Constraint("Symmetric", 1, 3, 2, 3, -1, 1))
sketch4.addConstraint(Sketcher.Constraint("Symmetric", 0, 3, 3, 3, -1, 1))
sketch4.addConstraint(Sketcher.Constraint("Symmetric", 5, 3, 6, 3, -1, 1))
sketch4.addConstraint(Sketcher.Constraint("Symmetric", 4, 3, 7, 3, -1, 1))
sketch4.addConstraint(Sketcher.Constraint("Symmetric", 0, 3, 1, 3, -2))
sketch4.addConstraint(Sketcher.Constraint("Symmetric", 4, 3, 6, 3, -2))
sketch4.addConstraint(Sketcher.Constraint("Symmetric", 25, 3, 27, 3, -2))
sketch4.addConstraint(Sketcher.Constraint("Symmetric", 26, 3, 28, 3, -2))
sketch4.addConstraint(Sketcher.Constraint("Symmetric", 24, 3, 29, 3, -2))
sketch4.addConstraint(Sketcher.Constraint("Symmetric", 23, 3, 30, 3, -2))
sketch4.addConstraint(Sketcher.Constraint("Symmetric", 22, 3, 31, 3, -2))
sketch4.addConstraint(Sketcher.Constraint("Symmetric", 21, 3, 32, 3, -2))
sketch4.addConstraint(Sketcher.Constraint("Symmetric", 20, 3, 33, 3, -2))
sketch4.addConstraint(Sketcher.Constraint("Symmetric", 18, 3, 34, 3, -2))
sketch4.addConstraint(Sketcher.Constraint("Symmetric", 19, 3, 35, 3, -2))
sketch4.addConstraint(Sketcher.Constraint("Symmetric", 16, 3, 36, 3, -2))
sketch4.addConstraint(Sketcher.Constraint("Symmetric", 15, 3, 37, 3, -2))
sketch4.addConstraint(Sketcher.Constraint("Symmetric", 14, 3, 38, 3, -2))
sketch4.addConstraint(Sketcher.Constraint("Symmetric", 13, 3, 39, 3, -2))
sketch4.addConstraint(Sketcher.Constraint("Symmetric", 12, 3, 40, 3, -2))
sketch4.addConstraint(Sketcher.Constraint("Symmetric", 11, 3, 41, 3, -2))
sketch4.addConstraint(Sketcher.Constraint("Symmetric", 10, 3, 42, 3, -2))
sketch4.addConstraint(Sketcher.Constraint("Symmetric", 8, 3, 43, 3, -2))
sketch4.addConstraint(Sketcher.Constraint("Symmetric", 9, 3, 44, 3, -2))
sketch4.addConstraint(Sketcher.Constraint("Symmetric", 17, 3, 45, 3, -2))
sketch4.addConstraint(Sketcher.Constraint("Horizontal", 1, 3, 9, 3))
sketch4.addConstraint(Sketcher.Constraint("Vertical", 7, 3, 25, 3))
sketch4.addConstraint(Sketcher.Constraint("Diameter", 0, Q("5.3 mm")))
sketch4.addConstraint(Sketcher.Constraint("Diameter", 8, Q("3.3 mm")))
sketch4.addConstraint(Sketcher.Constraint("Diameter", 13, Q("4.3 mm")))
sketch4.addConstraint(Sketcher.Constraint("DistanceX", 0, 3, -1, 1, Q("10 mm")))
sketch4.addConstraint(Sketcher.Constraint("DistanceY", 4, 3, -1, 1, Q("10 mm")))
sketch4.addConstraint(Sketcher.Constraint("DistanceY", 0, 3, 2, 3, Q("385 mm")))
sketch4.addConstraint(Sketcher.Constraint("DistanceX", 6, 3, 4, 3, Q("385 mm")))
sketch4.addConstraint(Sketcher.Constraint("DistanceY", 8, 3, -1, 1, Q("248.2231 mm")))
sketch4.addConstraint(Sketcher.Constraint("DistanceX", 26, 3, -1, 1, Q("248.2231 mm")))
sketch4.addConstraint(Sketcher.Constraint("DistanceX", 14, 3, 10, 3, Q("107.665598 mm")))
sketch4.addConstraint(Sketcher.Constraint("DistanceY", 19, 3, 14, 3, Q("22.823601 mm")))
sketch4.addConstraint(Sketcher.Constraint("DistanceX", 20, 3, 17, 3, Q("22.823601 mm")))
sketch4.addConstraint(Sketcher.Constraint("DistanceY", 28, 3, 29, 3, Q("66.220201 mm")))
sketch4.addConstraint(Sketcher.Constraint("DistanceX", 8, 3, -1, 1, Q("110.52514 mm")))
sketch4.addConstraint(Sketcher.Constraint("DistanceX", 10, 3, -1, 1, Q("56.749921 mm")))
sketch4.addConstraint(Sketcher.Constraint("DistanceY", 11, 3, -1, 1, Q("220.413039 mm")))
sketch4.addConstraint(Sketcher.Constraint("DistanceY", 12, 3, -1, 1, Q("228.786951 mm")))
sketch4.addConstraint(Sketcher.Constraint("DistanceY", 13, 3, -1, 1, Q("231.45377 mm")))
sketch4.addConstraint(Sketcher.Constraint("DistanceY", 14, 3, -1, 1, Q("217.29973 mm")))
sketch4.addConstraint(Sketcher.Constraint("DistanceX", 17, 3, -1, 1, Q("217.29973 mm")))
sketch4.addConstraint(Sketcher.Constraint("DistanceY", 17, 3, -1, 1, Q("164.41552 mm")))
sketch4.addConstraint(Sketcher.Constraint("DistanceX", 18, 3, -1, 1, Q("231.45377 mm")))
sketch4.addConstraint(Sketcher.Constraint("DistanceX", 21, 3, -1, 1, Q("228.786951 mm")))
sketch4.addConstraint(Sketcher.Constraint("DistanceX", 22, 3, -1, 1, Q("220.413039 mm")))
sketch4.addConstraint(Sketcher.Constraint("DistanceY", 23, 3, -1, 1, Q("56.749921 mm")))
sketch4.addConstraint(Sketcher.Constraint("DistanceY", 24, 3, -1, 1, Q("44.304938 mm")))
sketch4.addConstraint(Sketcher.Constraint("DistanceY", 11, 3, 10, 3, Q("8.373912 mm")))
sketch4.addConstraint(Sketcher.Constraint("DistanceX", 12, 3, 9, 3, Q("53.92826 mm")))
sketch4.addConstraint(Sketcher.Constraint("DistanceX", 13, 3, 11, 3, Q("74.613259 mm")))
sketch4.addConstraint(Sketcher.Constraint("DistanceX", 13, 3, 10, 3, Q("87.058242 mm")))
sketch4.addConstraint(Sketcher.Constraint("DistanceX", 15, 3, 12, 3, Q("101.99905 mm")))
sketch4.addConstraint(Sketcher.Constraint("DistanceY", 11, 3, 15, 3, Q("19.096432 mm")))
sketch4.addConstraint(Sketcher.Constraint("DistanceX", 16, 3, 15, 3, Q("17.67767 mm")))
sketch4.addConstraint(Sketcher.Constraint("DistanceY", 15, 3, 16, 3, Q("17.67767 mm")))
sketch4.addConstraint(Sketcher.Constraint("DistanceX", 13, 3, 19, 3, Q("14.996588 mm")))
sketch4.addConstraint(Sketcher.Constraint("DistanceY", 18, 3, 20, 3, Q("14.996588 mm")))
sketch4.addConstraint(Sketcher.Constraint("DistanceY", 15, 3, 20, 3, Q("72.505032 mm")))
sketch4.addConstraint(Sketcher.Constraint("DistanceY", 20, 3, 22, 3, Q("59.616671 mm")))
sketch4.addConstraint(Sketcher.Constraint("DistanceX", 22, 3, 23, 3, Q("8.373912 mm")))
sketch4.addConstraint(Sketcher.Constraint("DistanceX", 23, 3, 24, 3, Q("8.373912 mm")))
sketch4.addConstraint(Sketcher.Constraint("DistanceY", 21, 3, 24, 3, Q("37.334949 mm")))
sketch4.addConstraint(Sketcher.Constraint("DistanceY", 24, 3, 25, 3, Q("16.593311 mm")))
sketch4.addConstraint(Sketcher.Constraint("DistanceX", 35, 3, 36, 3, Q("72.505032 mm")))
pocket2 = doc.addObject("PartDesign::Pocket", "Pocket001")
body2.addObject(pocket2)
pocket2.Profile = sketch4
pocket2.Type = "ThroughAll"
pocket2.Reversed = True

sketch5 = doc.addObject("Sketcher::SketchObject", "Sketch004")
body2.addObject(sketch5)
sketch5.AttachmentSupport = (doc.getObject("XZ_Plane001"), [""])
sketch5.MapMode = "FlatFace"
sketch5.AttachmentOffset = App.Placement(V(0, 0, -20), App.Rotation())
add_polygon(sketch5, [(-354, -354), (-354, 354), (354, 354), (354, -354)])
add_polygon(sketch5, [(-21, -197), (-29, -184), (-92, -227), (-84, -239)])
sketch5.addConstraint(Sketcher.Constraint("Vertical", 0))
sketch5.addConstraint(Sketcher.Constraint("Horizontal", 1))
sketch5.addConstraint(Sketcher.Constraint("Vertical", 2))
sketch5.addConstraint(Sketcher.Constraint("Horizontal", 3))
sketch5.addConstraint(Sketcher.Constraint("Symmetric", 0, 2, 2, 2, -1, 1))
sketch5.addConstraint(Sketcher.Constraint("Perpendicular", 4, 5))
sketch5.addConstraint(Sketcher.Constraint("Perpendicular", 5, 6))
sketch5.addConstraint(Sketcher.Constraint("Perpendicular", 6, 7))
sketch5.addConstraint(Sketcher.Constraint("Equal", 3, 0))
sketch5.addConstraint(Sketcher.Constraint("Distance", 4, Q("15 mm")))
sketch5.addConstraint(Sketcher.Constraint("Distance", 5, Q("76 mm")))
sketch5.addConstraint(Sketcher.Constraint("DistanceX", 1, 1, 1, 2, Q("707.614 mm")))
sketch5.addConstraint(Sketcher.Constraint("DistanceY", 6, 2, -1, 1, Q("239.196398 mm")))
sketch5.addConstraint(Sketcher.Constraint("DistanceY", 7, 2, -1, 1, Q("196.768579 mm")))
sketch5.addConstraint(Sketcher.Constraint("DistanceX", 4, 2, -1, 1, Q("28.994754 mm")))
pocket3 = doc.addObject("PartDesign::Pocket", "Pocket002")
body2.addObject(pocket3)
pocket3.Profile = sketch5
pocket3.Type = "ThroughAll"
pocket3.Reversed = True

sketch6 = doc.addObject("Sketcher::SketchObject", "Sketch005")
body2.addObject(sketch6)
sketch6.AttachmentSupport = (doc.getObject("XZ_Plane001"), [""])
sketch6.MapMode = "FlatFace"
sketch6.AttachmentOffset = App.Placement(V(0, 0, -20), App.Rotation())
add_polygon(sketch6, [(-29, -184.3), (-28.5, -185), (-30, -185)])
sketch6.addConstraint(Sketcher.Constraint("Horizontal", 1))
sketch6.addConstraint(Sketcher.Constraint("Perpendicular", 0, 2))
sketch6.addConstraint(Sketcher.Constraint("DistanceY", 0, 2, -1, 1, Q("185 mm")))
sketch6.addConstraint(Sketcher.Constraint("DistanceX", 1, 2, -1, 1, Q("30 mm")))
sketch6.addConstraint(Sketcher.Constraint("DistanceX", 1, 2, 1, 1, Q("1.460381 mm")))
sketch6.addConstraint(Sketcher.Constraint("Distance", 0, Q("0.815273 mm")))
pad3 = doc.addObject("PartDesign::Pad", "Pad002")
body2.addObject(pad3)
pad3.Profile = sketch6
pad3.Length = 10

sketch7 = doc.addObject("Sketcher::SketchObject", "Sketch006")
body2.addObject(sketch7)
sketch7.Placement = App.Placement(V(-105.331501, 0, -70.874881), App.Rotation(V(0.558260781, 0, -0.829665535), V(0, 1, 0), V(0.829665535, 0, 0.558260781), "ZXY"))
add_polygon(sketch7, [(139, 18), (139, 12), (150, 12), (150, 18)])
sketch7.addConstraint(Sketcher.Constraint("Vertical", 0))
sketch7.addConstraint(Sketcher.Constraint("Horizontal", 1))
sketch7.addConstraint(Sketcher.Constraint("Vertical", 2))
sketch7.addConstraint(Sketcher.Constraint("Horizontal", 3))
sketch7.addConstraint(Sketcher.Constraint("DistanceX", 1, 1, 1, 2, Q("11 mm")))
sketch7.addConstraint(Sketcher.Constraint("DistanceY", 0, 2, 0, 1, Q("6 mm")))
sketch7.addConstraint(Sketcher.Constraint("DistanceY", -1, 1, 0, 2, Q("12 mm")))
sketch7.addConstraint(Sketcher.Constraint("DistanceX", -1, 1, 0, 2, Q("138.740301 mm")))
pocket4 = doc.addObject("PartDesign::Pocket", "Pocket003")
body2.addObject(pocket4)
pocket4.Profile = sketch7
pocket4.Type = "ThroughAll"
pocket4.Midplane = True

sketch8 = doc.addObject("Sketcher::SketchObject", "Sketch007")
body2.addObject(sketch8)
sketch8.AttachmentSupport = (doc.getObject("XZ_Plane001"), [""])
sketch8.MapMode = "FlatFace"
sketch8.AttachmentOffset = App.Placement(V(0, 0, -10), App.Rotation())
sketch8.addGeometry(Part.Circle(V(-47.5, -205.5, 0), V(0, 0, 1), 4), False)
sketch8.addConstraint(Sketcher.Constraint("Diameter", 0, Q("8 mm")))
sketch8.addConstraint(Sketcher.Constraint("DistanceX", 0, 3, -1, 1, Q("47.5 mm")))
sketch8.addConstraint(Sketcher.Constraint("DistanceY", 0, 3, -1, 1, Q("205.5 mm")))
pocket5 = doc.addObject("PartDesign::Pocket", "Pocket004")
body2.addObject(pocket5)
pocket5.Profile = sketch8
pocket5.Type = "ThroughAll"

doc.recompute()
